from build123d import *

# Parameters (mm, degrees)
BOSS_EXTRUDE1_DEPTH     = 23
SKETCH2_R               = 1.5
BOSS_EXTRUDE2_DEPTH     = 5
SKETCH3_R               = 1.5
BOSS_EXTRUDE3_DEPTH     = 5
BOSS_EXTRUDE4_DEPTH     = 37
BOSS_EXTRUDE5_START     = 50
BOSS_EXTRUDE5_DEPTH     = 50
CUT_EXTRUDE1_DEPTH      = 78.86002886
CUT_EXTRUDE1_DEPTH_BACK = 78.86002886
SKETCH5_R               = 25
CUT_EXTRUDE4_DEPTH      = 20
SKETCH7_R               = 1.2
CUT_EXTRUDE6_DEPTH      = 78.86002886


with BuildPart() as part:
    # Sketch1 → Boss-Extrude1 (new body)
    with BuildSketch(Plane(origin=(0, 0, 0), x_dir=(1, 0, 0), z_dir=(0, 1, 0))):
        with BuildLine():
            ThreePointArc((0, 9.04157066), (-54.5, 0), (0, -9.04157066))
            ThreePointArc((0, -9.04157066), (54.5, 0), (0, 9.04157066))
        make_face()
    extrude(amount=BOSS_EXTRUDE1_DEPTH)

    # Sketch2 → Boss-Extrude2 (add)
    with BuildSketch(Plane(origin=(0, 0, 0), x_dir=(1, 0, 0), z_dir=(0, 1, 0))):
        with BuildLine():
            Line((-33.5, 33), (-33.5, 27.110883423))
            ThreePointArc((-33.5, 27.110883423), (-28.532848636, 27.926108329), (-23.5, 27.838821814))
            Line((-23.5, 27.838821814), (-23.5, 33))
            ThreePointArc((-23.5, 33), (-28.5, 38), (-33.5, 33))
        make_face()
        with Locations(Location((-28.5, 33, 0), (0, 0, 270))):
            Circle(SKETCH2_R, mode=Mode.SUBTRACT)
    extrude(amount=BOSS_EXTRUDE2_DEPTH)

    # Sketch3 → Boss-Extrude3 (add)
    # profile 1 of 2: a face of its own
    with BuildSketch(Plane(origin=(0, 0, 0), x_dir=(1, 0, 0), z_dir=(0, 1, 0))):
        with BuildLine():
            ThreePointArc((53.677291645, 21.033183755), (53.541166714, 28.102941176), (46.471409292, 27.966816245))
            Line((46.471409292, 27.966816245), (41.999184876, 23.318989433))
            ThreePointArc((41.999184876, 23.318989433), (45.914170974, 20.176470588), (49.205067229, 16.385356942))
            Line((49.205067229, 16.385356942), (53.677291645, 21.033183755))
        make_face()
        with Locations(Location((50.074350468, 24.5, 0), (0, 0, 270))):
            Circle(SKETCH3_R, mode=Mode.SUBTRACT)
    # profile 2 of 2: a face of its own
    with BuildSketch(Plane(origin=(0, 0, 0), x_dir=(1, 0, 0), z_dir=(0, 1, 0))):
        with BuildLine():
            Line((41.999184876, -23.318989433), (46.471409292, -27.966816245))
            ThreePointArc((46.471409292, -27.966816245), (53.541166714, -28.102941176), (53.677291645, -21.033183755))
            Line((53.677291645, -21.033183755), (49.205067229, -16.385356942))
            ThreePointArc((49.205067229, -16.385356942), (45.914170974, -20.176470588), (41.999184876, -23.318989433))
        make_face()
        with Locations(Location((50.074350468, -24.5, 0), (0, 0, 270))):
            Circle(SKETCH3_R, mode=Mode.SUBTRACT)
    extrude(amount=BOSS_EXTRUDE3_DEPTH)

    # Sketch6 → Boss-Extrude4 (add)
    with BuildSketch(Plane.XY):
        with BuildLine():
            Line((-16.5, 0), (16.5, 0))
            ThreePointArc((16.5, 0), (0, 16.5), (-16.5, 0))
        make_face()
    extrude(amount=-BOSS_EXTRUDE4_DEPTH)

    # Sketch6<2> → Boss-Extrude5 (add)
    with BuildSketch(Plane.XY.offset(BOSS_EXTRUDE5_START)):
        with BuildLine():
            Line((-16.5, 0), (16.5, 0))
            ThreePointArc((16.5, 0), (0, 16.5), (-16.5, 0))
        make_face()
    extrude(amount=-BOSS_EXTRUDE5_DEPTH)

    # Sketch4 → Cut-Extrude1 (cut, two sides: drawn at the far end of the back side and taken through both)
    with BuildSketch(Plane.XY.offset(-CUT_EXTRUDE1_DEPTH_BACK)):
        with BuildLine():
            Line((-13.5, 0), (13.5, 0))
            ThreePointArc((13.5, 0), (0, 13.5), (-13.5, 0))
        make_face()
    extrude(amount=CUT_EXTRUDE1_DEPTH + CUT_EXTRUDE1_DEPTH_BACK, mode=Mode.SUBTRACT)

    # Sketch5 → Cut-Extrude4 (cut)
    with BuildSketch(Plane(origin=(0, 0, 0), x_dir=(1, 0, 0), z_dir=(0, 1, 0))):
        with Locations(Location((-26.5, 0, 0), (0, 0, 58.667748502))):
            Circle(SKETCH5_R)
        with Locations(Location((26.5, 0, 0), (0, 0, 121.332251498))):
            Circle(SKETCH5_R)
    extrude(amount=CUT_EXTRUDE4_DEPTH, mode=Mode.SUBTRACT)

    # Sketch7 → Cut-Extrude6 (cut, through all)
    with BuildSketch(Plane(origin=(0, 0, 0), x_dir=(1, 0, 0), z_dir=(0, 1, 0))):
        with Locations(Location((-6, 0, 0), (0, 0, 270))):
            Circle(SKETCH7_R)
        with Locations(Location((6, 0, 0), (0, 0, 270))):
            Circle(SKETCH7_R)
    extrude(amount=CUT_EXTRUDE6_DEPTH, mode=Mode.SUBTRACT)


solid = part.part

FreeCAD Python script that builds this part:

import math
import FreeCAD as App
import Part
import Sketcher

V = App.Vector
Q = App.Units.Quantity

doc = App.newDocument("Part")
body = doc.addObject("PartDesign::Body", "Body")

# Sketch on XZ plane
sketch1 = body.newObject("Sketcher::SketchObject", "Sketch")
sketch1.AttachmentSupport = (doc.getObject("XZ_Plane"), [""])
sketch1.MapMode = "FlatFace"
sketch1.addGeometry(Part.ArcOfCircle(Part.Circle(V(-26, 0, 0), V(0, 0, 1), 28), math.radians(19), math.radians(341)), False)
sketch1.addGeometry(Part.ArcOfCircle(Part.Circle(V(26, 0, 0), V(0, 0, 1), 28), math.radians(-161), math.radians(161)), False)
sketch1.addConstraint(Sketcher.Constraint("Coincident", 0, 1, 1, 2))
sketch1.addConstraint(Sketcher.Constraint("Coincident", 1, 1, 0, 2))
sketch1.addConstraint(Sketcher.Constraint("Equal", 0, 1))
sketch1.addConstraint(Sketcher.Constraint("Symmetric", 0, 3, 1, 3, -1, 1))
sketch1.addConstraint(Sketcher.Constraint("PointOnObject", 0, 3, -1))
sketch1.addConstraint(Sketcher.Constraint("Radius", 0, Q("28 mm")))
sketch1.addConstraint(Sketcher.Constraint("DistanceX", 0, 3, 1, 3, Q("53 mm")))
pad1 = body.newObject("PartDesign::Pad", "Pad")
pad1.Profile = sketch1
pad1.Length = 23
pad1.Reversed = True

# Sketch on XZ plane
sketch2 = body.newObject("Sketcher::SketchObject", "Sketch001")
sketch2.AttachmentSupport = (doc.getObject("XZ_Plane"), [""])
sketch2.MapMode = "FlatFace"
sketch2.addGeometry(Part.LineSegment(V(-33.5, -33, 0), V(-33.5, -27.1, 0)), False)
sketch2.addGeometry(Part.ArcOfCircle(Part.Circle(V(-26.5, 0, 0), V(0, 0, 1), 28), math.radians(-104), math.radians(-84)), False)
sketch2.addGeometry(Part.LineSegment(V(-23.5, -27.8, 0), V(-23.5, -33, 0)), False)
sketch2.addGeometry(Part.ArcOfCircle(Part.Circle(V(-28.5, -33, 0), V(0, 0, 1), 5), math.radians(180), math.radians(360)), False)
sketch2.addGeometry(Part.Circle(V(-28.5, -33, 0), V(0, 0, 1), 1.5), False)
sketch2.addConstraint(Sketcher.Constraint("Coincident", 0, 2, 1, 1))
sketch2.addConstraint(Sketcher.Constraint("Coincident", 1, 2, 2, 1))
sketch2.addConstraint(Sketcher.Constraint("Tangent", 2, 2, 3, 2))
sketch2.addConstraint(Sketcher.Constraint("Tangent", 3, 1, 0, 1))
sketch2.addConstraint(Sketcher.Constraint("Vertical", 0))
sketch2.addConstraint(Sketcher.Constraint("Vertical", 2))
sketch2.addConstraint(Sketcher.Constraint("Coincident", 4, 3, 3, 3))
sketch2.addConstraint(Sketcher.Constraint("PointOnObject", 1, 3, -1))
sketch2.addConstraint(Sketcher.Constraint("Diameter", 4, Q("3 mm")))
sketch2.addConstraint(Sketcher.Constraint("Radius", 1, Q("28 mm")))
sketch2.addConstraint(Sketcher.Constraint("Radius", 3, Q("5 mm")))
sketch2.addConstraint(Sketcher.Constraint("DistanceY", 3, 3, -1, 1, Q("33 mm")))
sketch2.addConstraint(Sketcher.Constraint("DistanceX", 3, 3, 1, 3, Q("2 mm")))
sketch2.addConstraint(Sketcher.Constraint("DistanceX", 1, 3, -1, 1, Q("26.5 mm")))
pad2 = body.newObject("PartDesign::Pad", "Pad001")
pad2.Profile = sketch2
pad2.Length = 5
pad2.Reversed = True

# Sketch on XZ plane
sketch3 = body.newObject("Sketcher::SketchObject", "Sketch002")
sketch3.AttachmentSupport = (doc.getObject("XZ_Plane"), [""])
sketch3.MapMode = "FlatFace"
sketch3.addGeometry(Part.ArcOfCircle(Part.Circle(V(50.1, -24.5, 0), V(0, 0, 1), 5), math.radians(-136), math.radians(44)), False)
sketch3.addGeometry(Part.LineSegment(V(46.5, -28, 0), V(42, -23.3, 0)), False)
sketch3.addGeometry(Part.ArcOfCircle(Part.Circle(V(26.5, 0, 0), V(0, 0, 1), 28), math.radians(-56), math.radians(-36)), False)
sketch3.addGeometry(Part.LineSegment(V(49.2, -16.4, 0), V(53.7, -21, 0)), False)
sketch3.addGeometry(Part.Circle(V(50.1, -24.5, 0), V(0, 0, 1), 1.5), False)
sketch3.addGeometry(Part.LineSegment(V(42, 23.3, 0), V(46.5, 28, 0)), False)
sketch3.addGeometry(Part.ArcOfCircle(Part.Circle(V(50.1, 24.5, 0), V(0, 0, 1), 5), math.radians(-44), math.radians(136)), False)
sketch3.addGeometry(Part.LineSegment(V(53.7, 21, 0), V(49.2, 16.4, 0)), False)
sketch3.addGeometry(Part.ArcOfCircle(Part.Circle(V(26.5, 0, 0), V(0, 0, 1), 28), math.radians(36), math.radians(56)), False)
sketch3.addGeometry(Part.Circle(V(50.1, 24.5, 0), V(0, 0, 1), 1.5), False)
sketch3.addConstraint(Sketcher.Constraint("Tangent", 0, 1, 1, 1))
sketch3.addConstraint(Sketcher.Constraint("Coincident", 1, 2, 2, 1))
sketch3.addConstraint(Sketcher.Constraint("Coincident", 2, 2, 3, 1))
sketch3.addConstraint(Sketcher.Constraint("Tangent", 3, 2, 0, 2))
sketch3.addConstraint(Sketcher.Constraint("Tangent", 5, 2, 6, 2))
sketch3.addConstraint(Sketcher.Constraint("Tangent", 6, 1, 7, 1))
sketch3.addConstraint(Sketcher.Constraint("Coincident", 7, 2, 8, 1))
sketch3.addConstraint(Sketcher.Constraint("Coincident", 8, 2, 5, 1))
sketch3.addConstraint(Sketcher.Constraint("Coincident", 4, 3, 0, 3))
sketch3.addConstraint(Sketcher.Constraint("Coincident", 8, 3, 2, 3))
sketch3.addConstraint(Sketcher.Constraint("Coincident", 9, 3, 6, 3))
sketch3.addConstraint(Sketcher.Constraint("Equal", 0, 6))
sketch3.addConstraint(Sketcher.Constraint("Equal", 2, 8))
sketch3.addConstraint(Sketcher.Constraint("Equal", 4, 9))
sketch3.addConstraint(Sketcher.Constraint("Symmetric", 0, 3, 6, 3, -1))
sketch3.addConstraint(Sketcher.Constraint("Symmetric", 2, 2, 7, 2, -1))
sketch3.addConstraint(Sketcher.Constraint("Parallel", 1, 3))
sketch3.addConstraint(Sketcher.Constraint("Parallel", 5, 7))
sketch3.addConstraint(Sketcher.Constraint("Equal", 1, 3))
sketch3.addConstraint(Sketcher.Constraint("Diameter", 4, Q("3 mm")))
sketch3.addConstraint(Sketcher.Constraint("Radius", 0, Q("5 mm")))
sketch3.addConstraint(Sketcher.Constraint("Radius", 2, Q("28 mm")))
sketch3.addConstraint(Sketcher.Constraint("DistanceY", 0, 3, 6, 3, Q("49 mm")))
sketch3.addConstraint(Sketcher.Constraint("DistanceX", -1, 1, 2, 3, Q("26.5 mm")))
sketch3.addConstraint(Sketcher.Constraint("DistanceX", -1, 1, 0, 3, Q("50.07435 mm")))
pad3 = body.newObject("PartDesign::Pad", "Pad002")
pad3.Profile = sketch3
pad3.Length = 5
pad3.Reversed = True

# Sketch on XY plane
sketch4 = body.newObject("Sketcher::SketchObject", "Sketch003")
sketch4.AttachmentSupport = (doc.getObject("XY_Plane"), [""])
sketch4.MapMode = "FlatFace"
sketch4.addGeometry(Part.LineSegment(V(-16, 0, 0), V(16, 0, 0)), False)
sketch4.addGeometry(Part.ArcOfCircle(Part.Circle(V(0, 0, 0), V(0, 0, 1), 16), math.radians(0), math.radians(180)), False)
sketch4.addConstraint(Sketcher.Constraint("Coincident", 0, 1, 1, 2))
sketch4.addConstraint(Sketcher.Constraint("Coincident", 1, 1, 0, 2))
sketch4.addConstraint(Sketcher.Constraint("Horizontal", 0))
sketch4.addConstraint(Sketcher.Constraint("Coincident", 1, 3, -1, 1))
sketch4.addConstraint(Sketcher.Constraint("PointOnObject", 0, 1, -1))
sketch4.addConstraint(Sketcher.Constraint("Radius", 1, Q("16.5 mm")))
pad4 = body.newObject("PartDesign::Pad", "Pad003")
pad4.Profile = sketch4
pad4.Length = 37
pad4.Reversed = True

# Sketch on XY plane
sketch5 = body.newObject("Sketcher::SketchObject", "Sketch004")
sketch5.AttachmentSupport = (doc.getObject("XY_Plane"), [""])
sketch5.MapMode = "FlatFace"
sketch5.AttachmentOffset = App.Placement(V(0, 0, 50), App.Rotation())
sketch5.addGeometry(Part.LineSegment(V(-16, 0, 0), V(16, 0, 0)), False)
sketch5.addGeometry(Part.ArcOfCircle(Part.Circle(V(0, 0, 0), V(0, 0, 1), 16), math.radians(0), math.radians(180)), False)
sketch5.addConstraint(Sketcher.Constraint("Coincident", 0, 1, 1, 2))
sketch5.addConstraint(Sketcher.Constraint("Coincident", 1, 1, 0, 2))
sketch5.addConstraint(Sketcher.Constraint("Horizontal", 0))
sketch5.addConstraint(Sketcher.Constraint("Coincident", 1, 3, -1, 1))
sketch5.addConstraint(Sketcher.Constraint("PointOnObject", 0, 1, -1))
sketch5.addConstraint(Sketcher.Constraint("Radius", 1, Q("16.5 mm")))
pad5 = body.newObject("PartDesign::Pad", "Pad004")
pad5.Profile = sketch5
pad5.Length = 50
pad5.Reversed = True

# Sketch on XY plane
sketch6 = body.newObject("Sketcher::SketchObject", "Sketch005")
sketch6.AttachmentSupport = (doc.getObject("XY_Plane"), [""])
sketch6.MapMode = "FlatFace"
sketch6.addGeometry(Part.LineSegment(V(-14, 0, 0), V(14, 0, 0)), False)
sketch6.addGeometry(Part.ArcOfCircle(Part.Circle(V(0, 0, 0), V(0, 0, 1), 14), math.radians(0), math.radians(180)), False)
sketch6.addConstraint(Sketcher.Constraint("Coincident", 0, 1, 1, 2))
sketch6.addConstraint(Sketcher.Constraint("Coincident", 1, 1, 0, 2))
sketch6.addConstraint(Sketcher.Constraint("Horizontal", 0))
sketch6.addConstraint(Sketcher.Constraint("Coincident", 1, 3, -1, 1))
sketch6.addConstraint(Sketcher.Constraint("PointOnObject", 0, 1, -1))
sketch6.addConstraint(Sketcher.Constraint("Radius", 1, Q("13.5 mm")))
pocket1 = body.newObject("PartDesign::Pocket", "Pocket")
pocket1.Profile = sketch6
pocket1.Type = "ThroughAll"
pocket1.Midplane = True

# Sketch on XZ plane
sketch7 = body.newObject("Sketcher::SketchObject", "Sketch006")
sketch7.AttachmentSupport = (doc.getObject("XZ_Plane"), [""])
sketch7.MapMode = "FlatFace"
sketch7.addGeometry(Part.Circle(V(-26, 0, 0), V(0, 0, 1), 25), False)
sketch7.addGeometry(Part.Circle(V(26, 0, 0), V(0, 0, 1), 25), False)
sketch7.addConstraint(Sketcher.Constraint("Equal", 0, 1))
sketch7.addConstraint(Sketcher.Constraint("Symmetric", 0, 3, 1, 3, -1, 1))
sketch7.addConstraint(Sketcher.Constraint("PointOnObject", 0, 3, -1))
sketch7.addConstraint(Sketcher.Constraint("Diameter", 0, Q("50 mm")))
sketch7.addConstraint(Sketcher.Constraint("DistanceX", 0, 3, 1, 3, Q("53 mm")))
pocket2 = body.newObject("PartDesign::Pocket", "Pocket001")
pocket2.Profile = sketch7
pocket2.Length = 20

# Sketch on XZ plane
sketch8 = body.newObject("Sketcher::SketchObject", "Sketch007")
sketch8.AttachmentSupport = (doc.getObject("XZ_Plane"), [""])
sketch8.MapMode = "FlatFace"
sketch8.addGeometry(Part.Circle(V(-6, 0, 0), V(0, 0, 1), 1.2), False)
sketch8.addGeometry(Part.Circle(V(6, 0, 0), V(0, 0, 1), 1.2), False)
sketch8.addConstraint(Sketcher.Constraint("Equal", 0, 1))
sketch8.addConstraint(Sketcher.Constraint("Symmetric", 0, 3, 1, 3, -1, 1))
sketch8.addConstraint(Sketcher.Constraint("PointOnObject", 0, 3, -1))
sketch8.addConstraint(Sketcher.Constraint("Diameter", 0, Q("2.4 mm")))
sketch8.addConstraint(Sketcher.Constraint("DistanceX", 0, 3, -1, 1, Q("6 mm")))
pocket3 = body.newObject("PartDesign::Pocket", "Pocket002")
pocket3.Profile = sketch8
pocket3.Type = "ThroughAll"

doc.recompute()
